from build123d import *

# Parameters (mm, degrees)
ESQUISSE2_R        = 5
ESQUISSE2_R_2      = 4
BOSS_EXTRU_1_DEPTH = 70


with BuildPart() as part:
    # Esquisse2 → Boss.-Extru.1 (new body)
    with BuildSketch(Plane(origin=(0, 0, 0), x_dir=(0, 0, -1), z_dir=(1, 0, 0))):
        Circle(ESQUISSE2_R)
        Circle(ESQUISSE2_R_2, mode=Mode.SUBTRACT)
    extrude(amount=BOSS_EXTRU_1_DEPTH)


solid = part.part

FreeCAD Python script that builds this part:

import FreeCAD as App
import Part
import Sketcher
from FreeCAD import Vector

doc = App.newDocument("Part")
params = doc.addObject("Spreadsheet::Sheet", "Params")
for row, (alias, value) in enumerate([
    ("sketch1_diameter", "10 mm"),
    ("sketch1_diameter2", "8 mm"),
    ("pad1_length", "70 mm"),
], start=1):
    params.set(f"A{row}", alias)
    params.set(f"B{row}", "=" + value)
    params.setAlias(f"B{row}", alias)

body = doc.addObject("PartDesign::Body", "Body")

sketch1 = body.newObject("Sketcher::SketchObject", "Sketch")
sketch1.AttachmentSupport = (doc.getObject("YZ_Plane"), [""])
sketch1.MapMode = "FlatFace"
sketch1.addGeometry(Part.Circle(Vector(0, 0, 0), Vector(0, 0, 1), 5), False)
sketch1.addGeometry(Part.Circle(Vector(0, 0, 0), Vector(0, 0, 1), 4), False)
sketch1.addConstraint(Sketcher.Constraint("Coincident", 0, 3, -1, 1))
sketch1.addConstraint(Sketcher.Constraint("Coincident", 1, 3, -1, 1))
sketch1.addConstraint(Sketcher.Constraint("Diameter", 0, 10.0))
sketch1.addConstraint(Sketcher.Constraint("Diameter", 1, 8.0))
sketch1.setExpression("Constraints[2]", "Params.sketch1_diameter")
sketch1.setExpression("Constraints[3]", "Params.sketch1_diameter2")
pad1 = body.newObject("PartDesign::Pad", "Pad")
pad1.Profile = sketch1
pad1.setExpression("Length", "Params.pad1_length")

doc.recompute()
